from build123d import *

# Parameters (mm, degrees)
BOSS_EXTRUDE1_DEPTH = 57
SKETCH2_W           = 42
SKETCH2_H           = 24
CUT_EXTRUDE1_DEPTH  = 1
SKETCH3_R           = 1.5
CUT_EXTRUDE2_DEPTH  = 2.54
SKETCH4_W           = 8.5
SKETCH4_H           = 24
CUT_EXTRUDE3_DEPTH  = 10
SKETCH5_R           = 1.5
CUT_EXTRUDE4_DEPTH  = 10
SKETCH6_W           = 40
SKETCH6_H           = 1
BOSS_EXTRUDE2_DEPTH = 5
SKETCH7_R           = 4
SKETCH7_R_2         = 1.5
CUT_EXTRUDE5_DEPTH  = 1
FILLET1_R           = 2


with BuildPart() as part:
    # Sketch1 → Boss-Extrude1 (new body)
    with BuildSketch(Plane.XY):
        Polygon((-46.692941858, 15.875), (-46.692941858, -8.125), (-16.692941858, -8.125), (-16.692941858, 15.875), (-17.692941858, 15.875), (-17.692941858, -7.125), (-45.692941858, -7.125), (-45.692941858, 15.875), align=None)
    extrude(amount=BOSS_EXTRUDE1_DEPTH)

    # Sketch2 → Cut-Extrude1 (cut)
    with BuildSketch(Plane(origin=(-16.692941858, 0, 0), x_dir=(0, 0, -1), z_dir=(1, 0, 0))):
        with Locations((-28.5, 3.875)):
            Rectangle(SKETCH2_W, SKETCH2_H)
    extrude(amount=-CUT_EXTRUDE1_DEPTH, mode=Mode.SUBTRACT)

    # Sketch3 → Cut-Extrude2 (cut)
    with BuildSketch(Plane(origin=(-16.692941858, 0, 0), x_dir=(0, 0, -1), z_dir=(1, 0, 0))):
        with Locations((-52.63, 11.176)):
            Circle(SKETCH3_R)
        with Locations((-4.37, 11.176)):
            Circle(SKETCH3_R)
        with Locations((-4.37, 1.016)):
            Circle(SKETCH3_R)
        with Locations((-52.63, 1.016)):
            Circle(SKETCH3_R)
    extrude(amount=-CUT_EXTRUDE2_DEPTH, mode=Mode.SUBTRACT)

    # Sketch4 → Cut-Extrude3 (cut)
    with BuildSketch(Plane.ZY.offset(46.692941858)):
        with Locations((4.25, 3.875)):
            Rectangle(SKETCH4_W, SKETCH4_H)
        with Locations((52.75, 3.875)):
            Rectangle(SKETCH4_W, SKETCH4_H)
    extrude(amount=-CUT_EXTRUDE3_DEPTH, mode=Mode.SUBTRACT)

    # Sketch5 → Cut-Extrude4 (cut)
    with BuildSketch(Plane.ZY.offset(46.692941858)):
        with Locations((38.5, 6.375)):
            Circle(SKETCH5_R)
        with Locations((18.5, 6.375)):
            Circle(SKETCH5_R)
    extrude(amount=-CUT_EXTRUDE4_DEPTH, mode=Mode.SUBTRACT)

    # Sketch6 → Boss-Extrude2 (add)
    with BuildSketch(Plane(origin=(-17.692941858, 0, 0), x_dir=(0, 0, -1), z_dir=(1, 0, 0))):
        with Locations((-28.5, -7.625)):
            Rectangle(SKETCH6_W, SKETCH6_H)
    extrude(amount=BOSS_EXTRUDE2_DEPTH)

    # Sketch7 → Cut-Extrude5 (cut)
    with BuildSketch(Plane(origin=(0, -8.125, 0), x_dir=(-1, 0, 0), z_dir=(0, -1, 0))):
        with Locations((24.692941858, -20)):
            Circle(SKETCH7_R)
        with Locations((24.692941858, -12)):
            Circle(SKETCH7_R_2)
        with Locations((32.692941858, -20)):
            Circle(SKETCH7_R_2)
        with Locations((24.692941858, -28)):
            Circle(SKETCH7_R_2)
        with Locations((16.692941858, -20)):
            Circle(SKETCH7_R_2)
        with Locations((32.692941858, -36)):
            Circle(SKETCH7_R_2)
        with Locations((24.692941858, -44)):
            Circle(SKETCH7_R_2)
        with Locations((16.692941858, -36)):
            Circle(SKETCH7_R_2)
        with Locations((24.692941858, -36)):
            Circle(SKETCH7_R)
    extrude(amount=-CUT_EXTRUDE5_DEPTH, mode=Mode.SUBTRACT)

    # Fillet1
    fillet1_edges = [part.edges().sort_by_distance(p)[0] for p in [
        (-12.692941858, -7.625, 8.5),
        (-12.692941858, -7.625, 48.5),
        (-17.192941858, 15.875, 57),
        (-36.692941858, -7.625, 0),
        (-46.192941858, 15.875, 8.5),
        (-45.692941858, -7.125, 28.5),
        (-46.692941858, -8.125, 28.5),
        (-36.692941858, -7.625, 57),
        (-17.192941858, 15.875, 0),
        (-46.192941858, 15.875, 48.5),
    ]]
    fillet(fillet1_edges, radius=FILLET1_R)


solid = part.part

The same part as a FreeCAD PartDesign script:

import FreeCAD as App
import Part
import Sketcher
from FreeCAD import Vector


def edges_at(feature, points):
    """Names of the edges that pass closest to the given points."""
    edges = feature.Shape.Edges
    near = lambda p: min(range(len(edges)), key=lambda i: edges[i].distToShape(Part.Vertex(*p))[0])
    return sorted({f"Edge{near(p) + 1}" for p in points})


def add_polygon(sketch, points):
    """Adds a closed chain of lines whose ends are joined by coincident constraints."""
    first, n = sketch.GeometryCount, len(points)
    for a, b in zip(points, points[1:] + points[:1]):
        sketch.addGeometry(Part.LineSegment(App.Vector(*a, 0), App.Vector(*b, 0)), False)
    for i in range(n):
        sketch.addConstraint(Sketcher.Constraint("Coincident", first + i, 2, first + (i + 1) % n, 1))

doc = App.newDocument("Part")
body = doc.addObject("PartDesign::Body", "Body")

# Sketch on XY plane
sketch1 = body.newObject("Sketcher::SketchObject", "Sketch")
sketch1.AttachmentSupport = (doc.getObject("XY_Plane"), [""])
sketch1.MapMode = "FlatFace"
add_polygon(sketch1, [(-46.7, 15.9), (-46.7, -8.1), (-16.7, -8.1), (-16.7, 15.9), (-17.7, 15.9), (-17.7, -7.1), (-45.7, -7.1), (-45.7, 15.9)])  # lines 0-7
sketch1.addConstraint([
    Sketcher.Constraint("Vertical", 0),
    Sketcher.Constraint("Horizontal", 1),
    Sketcher.Constraint("Vertical", 2),
    Sketcher.Constraint("Horizontal", 3),
    Sketcher.Constraint("Vertical", 4),
    Sketcher.Constraint("Horizontal", 5),
    Sketcher.Constraint("Vertical", 6),
    Sketcher.Constraint("Horizontal", 7),
    Sketcher.Constraint("Horizontal", 3, 2, 6, 2),
    Sketcher.Constraint("Equal", 3, 7),
    Sketcher.Constraint("DistanceX", 1, 1, 1, 2, 30.0),
    Sketcher.Constraint("DistanceX", 3, 2, 3, 1, 1.0),
    Sketcher.Constraint("DistanceY", 0, 2, 0, 1, 24.0),
    Sketcher.Constraint("DistanceY", 4, 2, 4, 1, 23.0),
    Sketcher.Constraint("DistanceY", 0, 2, -1, 1, 8.125),
    Sketcher.Constraint("DistanceX", 0, 2, -1, 1, 46.692942),
])
pad1 = body.newObject("PartDesign::Pad", "Pad")
pad1.Profile = sketch1
pad1.Length = 57

# Sketch on YZ plane
sketch2 = body.newObject("Sketcher::SketchObject", "Sketch001")
sketch2.AttachmentSupport = (doc.getObject("YZ_Plane"), [""])
sketch2.MapMode = "FlatFace"
sketch2.AttachmentOffset = App.Placement(Vector(0, 0, -16.692942), App.Rotation())
add_polygon(sketch2, [(16, 50), (-8, 50), (-8, 8), (16, 8)])  # lines 0-3
sketch2.addConstraint([
    Sketcher.Constraint("Horizontal", 0),
    Sketcher.Constraint("Vertical", 1),
    Sketcher.Constraint("Horizontal", 2),
    Sketcher.Constraint("Vertical", 3),
    Sketcher.Constraint("DistanceX", 0, 2, 0, 1, 24.0),
    Sketcher.Constraint("DistanceY", 1, 2, 1, 1, 42.0),
    Sketcher.Constraint("DistanceY", -1, 1, 0, 2, 49.5),
    Sketcher.Constraint("DistanceX", 0, 2, -1, 1, 8.125),
])
pocket1 = body.newObject("PartDesign::Pocket", "Pocket")
pocket1.Profile = sketch2
pocket1.Length = 1

# Sketch on YZ plane
sketch3 = body.newObject("Sketcher::SketchObject", "Sketch002")
sketch3.AttachmentSupport = (doc.getObject("YZ_Plane"), [""])
sketch3.MapMode = "FlatFace"
sketch3.AttachmentOffset = App.Placement(Vector(0, 0, -16.692942), App.Rotation())
sketch3.addGeometry([
    Part.Circle(Vector(11.2, 52.6, 0), Vector(0, 0, 1), 1.5),
    Part.Circle(Vector(11.2, 4.4, 0), Vector(0, 0, 1), 1.5),
    Part.Circle(Vector(1, 4.4, 0), Vector(0, 0, 1), 1.5),
    Part.Circle(Vector(1, 52.6, 0), Vector(0, 0, 1), 1.5),
], False)
sketch3.addConstraint([
    Sketcher.Constraint("Equal", 0, 1),
    Sketcher.Constraint("Equal", 1, 2),
    Sketcher.Constraint("Equal", 2, 3),
    Sketcher.Constraint("Horizontal", 1, 3, 2, 3),
    Sketcher.Constraint("Horizontal", 0, 3, 3, 3),
    Sketcher.Constraint("Vertical", 0, 3, 1, 3),
    Sketcher.Constraint("Vertical", 2, 3, 3, 3),
    Sketcher.Constraint("Diameter", 0, 3.0),
    Sketcher.Constraint("DistanceY", -1, 1, 0, 3, 52.63),
    Sketcher.Constraint("DistanceY", -1, 1, 1, 3, 4.37),
    Sketcher.Constraint("DistanceX", 2, 3, 1, 3, 10.16),
    Sketcher.Constraint("DistanceX", -1, 1, 0, 3, 11.176),
])
pocket2 = body.newObject("PartDesign::Pocket", "Pocket001")
pocket2.Profile = sketch3
pocket2.Length = 2.54

# Sketch on YZ plane
sketch4 = body.newObject("Sketcher::SketchObject", "Sketch003")
sketch4.AttachmentSupport = (doc.getObject("YZ_Plane"), [""])
sketch4.MapMode = "FlatFace"
sketch4.AttachmentOffset = App.Placement(Vector(0, 0, -46.692942), App.Rotation())
add_polygon(sketch4, [(16, 0), (-8, 0), (-8, 8), (16, 8)])  # lines 0-3
add_polygon(sketch4, [(16, 48), (-8, 48), (-8, 57), (16, 57)])  # lines 4-7
sketch4.addConstraint([
    Sketcher.Constraint("Horizontal", 0),
    Sketcher.Constraint("Vertical", 1),
    Sketcher.Constraint("Horizontal", 2),
    Sketcher.Constraint("Vertical", 3),
    Sketcher.Constraint("Horizontal", 4),
    Sketcher.Constraint("Vertical", 5),
    Sketcher.Constraint("Horizontal", 6),
    Sketcher.Constraint("Vertical", 7),
    Sketcher.Constraint("PointOnObject", 0, 2, -1),
    Sketcher.Constraint("Vertical", 1, 2, 4, 2),
    Sketcher.Constraint("Vertical", 3, 2, 6, 2),
    Sketcher.Constraint("Equal", 3, 5),
    Sketcher.Constraint("DistanceX", 0, 2, 0, 1, 24.0),
    Sketcher.Constraint("DistanceY", 1, 1, 1, 2, 8.5),
    Sketcher.Constraint("DistanceY", -1, 1, 5, 2, 57.0),
    Sketcher.Constraint("DistanceX", 0, 2, -1, 1, 8.125),
])
pocket3 = body.newObject("PartDesign::Pocket", "Pocket002")
pocket3.Profile = sketch4
pocket3.Length = 10
pocket3.Reversed = True

# Sketch on YZ plane
sketch5 = body.newObject("Sketcher::SketchObject", "Sketch004")
sketch5.AttachmentSupport = (doc.getObject("YZ_Plane"), [""])
sketch5.MapMode = "FlatFace"
sketch5.AttachmentOffset = App.Placement(Vector(0, 0, -46.692942), App.Rotation())
sketch5.addGeometry([
    Part.Circle(Vector(6.4, 38.5, 0), Vector(0, 0, 1), 1.5),
    Part.Circle(Vector(6.4, 18.5, 0), Vector(0, 0, 1), 1.5),
], False)
sketch5.addConstraint([
    Sketcher.Constraint("Equal", 0, 1),
    Sketcher.Constraint("Vertical", 0, 3, 1, 3),
    Sketcher.Constraint("Diameter", 0, 3.0),
    Sketcher.Constraint("DistanceY", 1, 3, 0, 3, 20.0),
    Sketcher.Constraint("DistanceY", -1, 1, 0, 3, 38.5),
    Sketcher.Constraint("DistanceX", -1, 1, 0, 3, 6.375),
])
pocket4 = body.newObject("PartDesign::Pocket", "Pocket003")
pocket4.Profile = sketch5
pocket4.Length = 10
pocket4.Reversed = True

# Sketch on YZ plane
sketch6 = body.newObject("Sketcher::SketchObject", "Sketch005")
sketch6.AttachmentSupport = (doc.getObject("YZ_Plane"), [""])
sketch6.MapMode = "FlatFace"
sketch6.AttachmentOffset = App.Placement(Vector(0, 0, -17.692942), App.Rotation())
add_polygon(sketch6, [(-7.1, 48.5), (-8.1, 48.5), (-8.1, 8.5), (-7.1, 8.5)])  # lines 0-3
sketch6.addConstraint([
    Sketcher.Constraint("Horizontal", 0),
    Sketcher.Constraint("Vertical", 1),
    Sketcher.Constraint("Horizontal", 2),
    Sketcher.Constraint("Vertical", 3),
    Sketcher.Constraint("DistanceX", 0, 2, 0, 1, 1.0),
    Sketcher.Constraint("DistanceY", 1, 2, 1, 1, 40.0),
    Sketcher.Constraint("DistanceY", -1, 1, 0, 2, 48.5),
    Sketcher.Constraint("DistanceX", 0, 2, -1, 1, 8.125),
])
pad2 = body.newObject("PartDesign::Pad", "Pad001")
pad2.Profile = sketch6
pad2.Length = 5

# Sketch on XZ plane
sketch7 = body.newObject("Sketcher::SketchObject", "Sketch006")
sketch7.AttachmentSupport = (doc.getObject("XZ_Plane"), [""])
sketch7.MapMode = "FlatFace"
sketch7.AttachmentOffset = App.Placement(Vector(0, 0, 8.125), App.Rotation())
sketch7.addGeometry([
    Part.Circle(Vector(-24.7, 20, 0), Vector(0, 0, 1), 4),  # 0
    Part.Circle(Vector(-24.7, 12, 0), Vector(0, 0, 1), 1.5),  # 1
    Part.Circle(Vector(-32.7, 20, 0), Vector(0, 0, 1), 1.5),  # 2
    Part.Circle(Vector(-24.7, 28, 0), Vector(0, 0, 1), 1.5),  # 3
    Part.Circle(Vector(-16.7, 20, 0), Vector(0, 0, 1), 1.5),  # 4
    Part.Circle(Vector(-32.7, 36, 0), Vector(0, 0, 1), 1.5),  # 5
    Part.Circle(Vector(-24.7, 44, 0), Vector(0, 0, 1), 1.5),  # 6
    Part.Circle(Vector(-16.7, 36, 0), Vector(0, 0, 1), 1.5),  # 7
    Part.Circle(Vector(-24.7, 36, 0), Vector(0, 0, 1), 4),  # 8
], False)
sketch7.addConstraint([
    Sketcher.Constraint("Equal", 1, 2),
    Sketcher.Constraint("Equal", 2, 3),
    Sketcher.Constraint("Equal", 3, 4),
    Sketcher.Constraint("Equal", 4, 5),
    Sketcher.Constraint("Equal", 5, 6),
    Sketcher.Constraint("Equal", 6, 7),
    Sketcher.Constraint("Equal", 0, 8),
    Sketcher.Constraint("Horizontal", 0, 3, 2, 3),
    Sketcher.Constraint("Horizontal", 2, 3, 4, 3),
    Sketcher.Constraint("Horizontal", 5, 3, 7, 3),
    Sketcher.Constraint("Horizontal", 7, 3, 8, 3),
    Sketcher.Constraint("Vertical", 0, 3, 1, 3),
    Sketcher.Constraint("Vertical", 1, 3, 3, 3),
    Sketcher.Constraint("Vertical", 2, 3, 5, 3),
    Sketcher.Constraint("Vertical", 3, 3, 6, 3),
    Sketcher.Constraint("Vertical", 4, 3, 7, 3),
    Sketcher.Constraint("Vertical", 6, 3, 8, 3),
    Sketcher.Constraint("Diameter", 0, 8.0),
    Sketcher.Constraint("Diameter", 1, 3.0),
    Sketcher.Constraint("DistanceY", -1, 1, 0, 3, 20.0),
    Sketcher.Constraint("DistanceY", -1, 1, 1, 3, 12.0),
    Sketcher.Constraint("DistanceY", -1, 1, 3, 3, 28.0),
    Sketcher.Constraint("DistanceY", -1, 1, 5, 3, 36.0),
    Sketcher.Constraint("DistanceY", -1, 1, 6, 3, 44.0),
    Sketcher.Constraint("DistanceX", 2, 3, 0, 3, 8.0),
    Sketcher.Constraint("DistanceX", 0, 3, 4, 3, 8.0),
    Sketcher.Constraint("DistanceX", 0, 3, -1, 1, 24.692942),
])
pocket5 = body.newObject("PartDesign::Pocket", "Pocket004")
pocket5.Profile = sketch7
pocket5.Length = 1
doc.recompute()

fillet = body.newObject("PartDesign::Fillet", "Fillet")
fillet.Base = (pocket5, edges_at(pocket5, [
    (-12.693, -7.625, 8.5),
    (-12.693, -7.625, 48.5),
    (-17.193, 15.875, 57),
    (-36.693, -7.625, 0),
    (-46.193, 15.875, 8.5),
    (-45.693, -7.125, 28.5),
    (-46.693, -8.125, 28.5),
    (-36.693, -7.625, 57),
    (-17.193, 15.875, 0),
    (-46.193, 15.875, 48.5),
]))
fillet.Radius = 2

doc.recompute()
